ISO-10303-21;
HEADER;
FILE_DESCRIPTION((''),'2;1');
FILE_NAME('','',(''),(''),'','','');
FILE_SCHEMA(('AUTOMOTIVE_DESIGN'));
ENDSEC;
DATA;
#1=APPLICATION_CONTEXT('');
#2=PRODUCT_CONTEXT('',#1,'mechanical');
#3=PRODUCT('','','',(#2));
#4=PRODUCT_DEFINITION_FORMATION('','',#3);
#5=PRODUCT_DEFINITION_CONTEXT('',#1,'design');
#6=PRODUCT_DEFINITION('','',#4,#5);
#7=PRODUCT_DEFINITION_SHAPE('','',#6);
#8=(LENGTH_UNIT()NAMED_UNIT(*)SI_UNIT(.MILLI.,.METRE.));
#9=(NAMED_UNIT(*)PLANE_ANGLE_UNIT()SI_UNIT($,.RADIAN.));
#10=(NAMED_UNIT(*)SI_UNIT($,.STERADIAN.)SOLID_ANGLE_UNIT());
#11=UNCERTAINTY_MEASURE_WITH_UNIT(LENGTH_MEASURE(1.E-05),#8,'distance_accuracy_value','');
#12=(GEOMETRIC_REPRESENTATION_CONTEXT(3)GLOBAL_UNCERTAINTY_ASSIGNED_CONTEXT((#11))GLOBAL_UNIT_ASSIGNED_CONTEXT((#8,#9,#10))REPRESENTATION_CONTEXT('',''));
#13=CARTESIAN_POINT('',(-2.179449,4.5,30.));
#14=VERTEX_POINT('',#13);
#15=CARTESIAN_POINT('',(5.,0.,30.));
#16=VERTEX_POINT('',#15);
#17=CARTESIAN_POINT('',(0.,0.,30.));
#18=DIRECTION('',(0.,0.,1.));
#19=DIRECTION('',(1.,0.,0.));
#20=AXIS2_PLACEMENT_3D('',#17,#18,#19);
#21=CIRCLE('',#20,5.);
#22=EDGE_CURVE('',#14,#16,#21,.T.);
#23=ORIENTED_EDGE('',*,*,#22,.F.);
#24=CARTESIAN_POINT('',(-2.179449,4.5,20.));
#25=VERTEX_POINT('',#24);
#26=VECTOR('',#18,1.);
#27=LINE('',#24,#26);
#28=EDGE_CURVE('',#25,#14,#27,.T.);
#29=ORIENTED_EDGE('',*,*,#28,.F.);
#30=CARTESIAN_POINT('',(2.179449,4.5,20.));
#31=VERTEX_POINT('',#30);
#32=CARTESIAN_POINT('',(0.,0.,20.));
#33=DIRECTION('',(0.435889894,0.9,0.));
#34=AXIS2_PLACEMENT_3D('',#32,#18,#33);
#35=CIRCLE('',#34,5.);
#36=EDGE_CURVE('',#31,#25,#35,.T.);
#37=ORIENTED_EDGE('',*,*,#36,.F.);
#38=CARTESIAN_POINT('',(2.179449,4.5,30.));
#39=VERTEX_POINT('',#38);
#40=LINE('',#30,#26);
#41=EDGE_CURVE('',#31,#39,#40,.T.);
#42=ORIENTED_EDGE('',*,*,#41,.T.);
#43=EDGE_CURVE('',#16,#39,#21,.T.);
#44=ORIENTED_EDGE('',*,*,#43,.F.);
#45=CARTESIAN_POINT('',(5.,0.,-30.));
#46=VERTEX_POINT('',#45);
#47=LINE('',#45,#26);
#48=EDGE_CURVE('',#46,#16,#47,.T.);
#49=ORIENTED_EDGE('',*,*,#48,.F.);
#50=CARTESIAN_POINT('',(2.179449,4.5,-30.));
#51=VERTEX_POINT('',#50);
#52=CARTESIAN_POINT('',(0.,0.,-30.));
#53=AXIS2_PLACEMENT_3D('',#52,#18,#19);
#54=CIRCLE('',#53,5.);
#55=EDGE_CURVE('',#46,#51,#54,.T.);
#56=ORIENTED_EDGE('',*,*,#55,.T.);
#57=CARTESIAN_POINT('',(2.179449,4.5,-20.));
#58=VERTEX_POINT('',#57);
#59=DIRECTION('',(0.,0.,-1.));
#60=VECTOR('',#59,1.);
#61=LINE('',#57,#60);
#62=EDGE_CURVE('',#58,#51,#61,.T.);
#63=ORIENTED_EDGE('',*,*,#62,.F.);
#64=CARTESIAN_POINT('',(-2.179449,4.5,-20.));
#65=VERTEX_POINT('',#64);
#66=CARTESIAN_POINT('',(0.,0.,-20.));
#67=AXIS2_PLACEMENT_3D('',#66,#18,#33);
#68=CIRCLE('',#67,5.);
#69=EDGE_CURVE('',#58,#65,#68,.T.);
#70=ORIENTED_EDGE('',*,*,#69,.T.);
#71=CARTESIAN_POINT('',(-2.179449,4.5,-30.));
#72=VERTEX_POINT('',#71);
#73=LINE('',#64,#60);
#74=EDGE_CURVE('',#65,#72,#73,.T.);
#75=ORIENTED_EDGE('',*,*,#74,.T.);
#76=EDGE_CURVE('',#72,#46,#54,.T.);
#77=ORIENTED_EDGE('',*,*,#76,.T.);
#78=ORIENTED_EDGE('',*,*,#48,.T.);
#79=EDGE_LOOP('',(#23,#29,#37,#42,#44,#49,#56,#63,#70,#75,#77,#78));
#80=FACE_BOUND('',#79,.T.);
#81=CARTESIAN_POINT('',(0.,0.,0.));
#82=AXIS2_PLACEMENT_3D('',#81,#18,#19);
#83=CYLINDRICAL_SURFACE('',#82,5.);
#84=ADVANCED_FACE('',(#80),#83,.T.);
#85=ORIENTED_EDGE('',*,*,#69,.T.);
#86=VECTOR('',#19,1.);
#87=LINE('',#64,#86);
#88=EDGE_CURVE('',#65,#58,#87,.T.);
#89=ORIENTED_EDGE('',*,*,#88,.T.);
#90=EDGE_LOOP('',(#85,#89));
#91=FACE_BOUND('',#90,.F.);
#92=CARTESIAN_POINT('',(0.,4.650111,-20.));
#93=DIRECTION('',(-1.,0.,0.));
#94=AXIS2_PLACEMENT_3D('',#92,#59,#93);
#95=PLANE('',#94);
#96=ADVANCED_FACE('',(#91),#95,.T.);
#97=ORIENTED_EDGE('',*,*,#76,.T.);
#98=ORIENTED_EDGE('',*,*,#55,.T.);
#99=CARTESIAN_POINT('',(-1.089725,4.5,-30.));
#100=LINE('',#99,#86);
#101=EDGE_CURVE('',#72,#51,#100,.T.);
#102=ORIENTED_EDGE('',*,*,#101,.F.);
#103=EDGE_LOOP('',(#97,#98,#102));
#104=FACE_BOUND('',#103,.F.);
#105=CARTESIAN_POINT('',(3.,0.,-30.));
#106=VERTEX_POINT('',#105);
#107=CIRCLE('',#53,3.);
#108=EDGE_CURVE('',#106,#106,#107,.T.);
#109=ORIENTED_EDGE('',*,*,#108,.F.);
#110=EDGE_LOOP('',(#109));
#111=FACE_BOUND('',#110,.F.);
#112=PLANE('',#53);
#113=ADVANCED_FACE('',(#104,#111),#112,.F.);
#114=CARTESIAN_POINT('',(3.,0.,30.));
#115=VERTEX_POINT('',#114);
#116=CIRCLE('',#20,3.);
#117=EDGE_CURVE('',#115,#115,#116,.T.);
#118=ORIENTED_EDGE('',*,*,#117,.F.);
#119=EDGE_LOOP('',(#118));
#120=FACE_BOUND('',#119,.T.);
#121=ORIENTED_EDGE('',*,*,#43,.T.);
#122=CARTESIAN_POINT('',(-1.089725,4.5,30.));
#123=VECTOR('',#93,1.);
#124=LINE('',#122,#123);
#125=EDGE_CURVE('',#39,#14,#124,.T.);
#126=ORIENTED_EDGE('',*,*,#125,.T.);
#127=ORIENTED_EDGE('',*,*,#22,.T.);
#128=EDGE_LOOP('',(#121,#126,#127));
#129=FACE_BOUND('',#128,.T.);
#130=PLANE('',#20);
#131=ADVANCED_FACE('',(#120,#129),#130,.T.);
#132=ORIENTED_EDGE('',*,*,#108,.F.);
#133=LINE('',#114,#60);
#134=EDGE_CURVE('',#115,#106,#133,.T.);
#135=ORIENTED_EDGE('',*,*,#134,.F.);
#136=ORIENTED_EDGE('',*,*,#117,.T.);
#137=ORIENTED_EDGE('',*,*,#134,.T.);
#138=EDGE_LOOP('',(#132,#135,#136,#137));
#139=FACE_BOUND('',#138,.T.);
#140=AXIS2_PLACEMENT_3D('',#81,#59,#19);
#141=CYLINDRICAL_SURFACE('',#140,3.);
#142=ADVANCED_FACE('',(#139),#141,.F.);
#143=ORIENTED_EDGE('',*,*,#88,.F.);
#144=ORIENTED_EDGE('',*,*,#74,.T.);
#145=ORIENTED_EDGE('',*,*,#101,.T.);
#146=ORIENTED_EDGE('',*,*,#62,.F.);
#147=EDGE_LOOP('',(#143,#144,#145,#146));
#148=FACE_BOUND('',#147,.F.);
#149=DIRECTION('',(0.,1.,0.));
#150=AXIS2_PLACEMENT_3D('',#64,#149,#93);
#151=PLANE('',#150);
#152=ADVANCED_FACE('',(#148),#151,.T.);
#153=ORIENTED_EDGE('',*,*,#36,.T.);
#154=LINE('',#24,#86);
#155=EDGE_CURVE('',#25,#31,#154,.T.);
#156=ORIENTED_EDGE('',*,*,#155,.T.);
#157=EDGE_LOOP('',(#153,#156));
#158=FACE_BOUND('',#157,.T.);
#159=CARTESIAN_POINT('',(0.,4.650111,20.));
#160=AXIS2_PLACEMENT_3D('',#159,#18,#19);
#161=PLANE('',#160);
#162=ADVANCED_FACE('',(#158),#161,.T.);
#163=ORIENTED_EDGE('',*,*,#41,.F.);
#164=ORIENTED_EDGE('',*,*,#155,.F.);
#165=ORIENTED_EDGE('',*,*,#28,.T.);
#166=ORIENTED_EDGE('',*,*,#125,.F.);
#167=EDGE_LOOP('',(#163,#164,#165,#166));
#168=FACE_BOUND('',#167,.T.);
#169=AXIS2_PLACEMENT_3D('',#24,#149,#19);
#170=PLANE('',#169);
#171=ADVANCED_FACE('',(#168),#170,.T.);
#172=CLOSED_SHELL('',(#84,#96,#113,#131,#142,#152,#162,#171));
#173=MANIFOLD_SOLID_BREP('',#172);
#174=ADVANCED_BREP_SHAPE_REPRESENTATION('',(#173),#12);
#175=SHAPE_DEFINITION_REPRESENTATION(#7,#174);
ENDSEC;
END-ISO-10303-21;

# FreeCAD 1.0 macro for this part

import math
import FreeCAD as App
import Part
import Sketcher

V = App.Vector

doc = App.newDocument("Part")
body = doc.addObject("PartDesign::Body", "Body")

sketch1 = body.newObject("Sketcher::SketchObject", "Sketch")
sketch1.AttachmentSupport = (doc.getObject("XY_Plane"), [""])
sketch1.MapMode = "FlatFace"
sketch1.addGeometry([
    Part.Circle(V(0, 0, 0), V(0, 0, 1), 5),
    Part.Circle(V(0, 0, 0), V(0, 0, 1), 3),
], False)
sketch1.addConstraint([
    Sketcher.Constraint("Coincident", 0, 3, -1, 1),
    Sketcher.Constraint("Coincident", 1, 3, -1, 1),
    Sketcher.Constraint("Diameter", 0, 10.0),
    Sketcher.Constraint("Diameter", 1, 6.0),
])
pad1 = body.newObject("PartDesign::Pad", "Pad")
pad1.Profile = sketch1
pad1.Length = 60
pad1.Midplane = True

sketch2 = body.newObject("Sketcher::SketchObject", "Sketch001")
sketch2.AttachmentSupport = (doc.getObject("XY_Plane"), [""])
sketch2.MapMode = "FlatFace"
sketch2.AttachmentOffset = App.Placement(V(0, 0, 20), App.Rotation())
sketch2.addGeometry([
    Part.LineSegment(V(-2.2, 4.5, 0), V(2.2, 4.5, 0)),
    Part.ArcOfCircle(Part.Circle(V(0, 0, 0), V(0, 0, 1), 5), math.radians(64), math.radians(116)),
], False)
sketch2.addConstraint([
    Sketcher.Constraint("Coincident", 0, 1, 1, 2),
    Sketcher.Constraint("Coincident", 1, 1, 0, 2),
    Sketcher.Constraint("Horizontal", 0),
    Sketcher.Constraint("Coincident", 1, 3, -1, 1),
    Sketcher.Constraint("Radius", 1, 5.0),
    Sketcher.Constraint("DistanceY", -1, 1, 0, 1, 4.5),
])
pocket1 = body.newObject("PartDesign::Pocket", "Pocket")
pocket1.Profile = sketch2
pocket1.Length = 11
pocket1.Reversed = True
doc.recompute()

mirrored = body.newObject("PartDesign::Mirrored", "Mirrored")
mirrored.Originals = [pocket1]
mirrored.MirrorPlane = (doc.getObject("XY_Plane"), [""])
body.Tip = mirrored

doc.recompute()
